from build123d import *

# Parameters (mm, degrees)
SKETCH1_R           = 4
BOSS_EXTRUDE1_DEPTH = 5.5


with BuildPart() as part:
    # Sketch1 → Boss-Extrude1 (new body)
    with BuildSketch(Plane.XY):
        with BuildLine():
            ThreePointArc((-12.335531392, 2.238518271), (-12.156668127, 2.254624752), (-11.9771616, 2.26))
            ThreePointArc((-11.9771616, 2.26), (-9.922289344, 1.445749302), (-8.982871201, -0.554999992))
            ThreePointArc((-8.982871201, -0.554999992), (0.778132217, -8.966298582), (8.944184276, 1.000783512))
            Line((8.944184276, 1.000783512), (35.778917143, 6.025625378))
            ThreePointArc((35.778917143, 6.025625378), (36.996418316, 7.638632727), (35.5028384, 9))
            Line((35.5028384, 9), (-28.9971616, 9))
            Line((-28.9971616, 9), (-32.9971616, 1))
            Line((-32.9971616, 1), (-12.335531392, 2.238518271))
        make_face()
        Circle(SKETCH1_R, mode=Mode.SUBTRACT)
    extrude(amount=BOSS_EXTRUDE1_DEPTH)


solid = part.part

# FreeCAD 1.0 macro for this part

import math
import FreeCAD as App
import Part
import Sketcher
Q = App.Units.Quantity

doc = App.newDocument("Part")
body = doc.addObject("PartDesign::Body", "Body")

sketch1 = body.newObject("Sketcher::SketchObject", "Sketch")
sketch1.AttachmentSupport = (doc.getObject("XY_Plane"), [""])
sketch1.MapMode = "FlatFace"
sketch1.addGeometry(Part.ArcOfCircle(Part.Circle(App.Vector(-11.98, -0.74, 0), App.Vector(0, 0, 1), 3), math.radians(90), math.radians(96.86)), False)
sketch1.addGeometry(Part.ArcOfCircle(Part.Circle(App.Vector(-11.98, -0.74, 0), App.Vector(0, 0, 1), 3), math.radians(4), math.radians(90)), False)
sketch1.addGeometry(Part.ArcOfCircle(Part.Circle(App.Vector(0, 0, 0), App.Vector(0, 0, 1), 9), math.radians(-176), math.radians(6)), False)
sketch1.addGeometry(Part.LineSegment(App.Vector(8.94, 1, 0), App.Vector(35.78, 6.03, 0)), False)
sketch1.addGeometry(Part.ArcOfCircle(Part.Circle(App.Vector(35.5, 7.5, 0), App.Vector(0, 0, 1), 1.5), math.radians(-79), math.radians(90)), False)
sketch1.addGeometry(Part.LineSegment(App.Vector(35.5, 9, 0), App.Vector(-29, 9, 0)), False)
sketch1.addGeometry(Part.LineSegment(App.Vector(-29, 9, 0), App.Vector(-33, 1, 0)), False)
sketch1.addGeometry(Part.LineSegment(App.Vector(-33, 1, 0), App.Vector(-12.34, 2.24, 0)), False)
sketch1.addGeometry(Part.Circle(App.Vector(0, 0, 0), App.Vector(0, 0, 1), 4), False)
sketch1.addConstraint(Sketcher.Constraint("Tangent", 0, 1, 1, 2))
sketch1.addConstraint(Sketcher.Constraint("Tangent", 1, 1, 2, 1))
sketch1.addConstraint(Sketcher.Constraint("Coincident", 2, 2, 3, 1))
sketch1.addConstraint(Sketcher.Constraint("Tangent", 3, 2, 4, 1))
sketch1.addConstraint(Sketcher.Constraint("Tangent", 4, 2, 5, 1))
sketch1.addConstraint(Sketcher.Constraint("Coincident", 5, 2, 6, 1))
sketch1.addConstraint(Sketcher.Constraint("Coincident", 6, 2, 7, 1))
sketch1.addConstraint(Sketcher.Constraint("Coincident", 7, 2, 0, 2))
sketch1.addConstraint(Sketcher.Constraint("Horizontal", 5))
sketch1.addConstraint(Sketcher.Constraint("Coincident", 2, 3, -1, 1))
sketch1.addConstraint(Sketcher.Constraint("Coincident", 8, 3, -1, 1))
sketch1.addConstraint(Sketcher.Constraint("Equal", 0, 1))
sketch1.addConstraint(Sketcher.Constraint("Vertical", 1, 3, 0, 1))
sketch1.addConstraint(Sketcher.Constraint("Diameter", 8, Q("8 mm")))
sketch1.addConstraint(Sketcher.Constraint("Radius", 0, Q("3 mm")))
sketch1.addConstraint(Sketcher.Constraint("Radius", 2, Q("9 mm")))
sketch1.addConstraint(Sketcher.Constraint("Radius", 4, Q("1.5 mm")))
sketch1.addConstraint(Sketcher.Constraint("DistanceX", 5, 2, 5, 1, Q("64.5 mm")))
sketch1.addConstraint(Sketcher.Constraint("DistanceY", -1, 1, 4, 2, Q("9 mm")))
sketch1.addConstraint(Sketcher.Constraint("DistanceY", -1, 1, 6, 2, Q("1 mm")))
sketch1.addConstraint(Sketcher.Constraint("DistanceX", 6, 2, 5, 2, Q("4 mm")))
sketch1.addConstraint(Sketcher.Constraint("DistanceY", 0, 3, -1, 1, Q("0.74 mm")))
sketch1.addConstraint(Sketcher.Constraint("DistanceX", 1, 3, 4, 3, Q("47.48 mm")))
sketch1.addConstraint(Sketcher.Constraint("DistanceX", 7, 2, -1, 1, Q("12.335531 mm")))
sketch1.addConstraint(Sketcher.Constraint("DistanceX", 4, 3, 3, 2, Q("0.276079 mm")))
pad1 = body.newObject("PartDesign::Pad", "Pad")
pad1.Profile = sketch1
pad1.Length = 5.5

doc.recompute()
